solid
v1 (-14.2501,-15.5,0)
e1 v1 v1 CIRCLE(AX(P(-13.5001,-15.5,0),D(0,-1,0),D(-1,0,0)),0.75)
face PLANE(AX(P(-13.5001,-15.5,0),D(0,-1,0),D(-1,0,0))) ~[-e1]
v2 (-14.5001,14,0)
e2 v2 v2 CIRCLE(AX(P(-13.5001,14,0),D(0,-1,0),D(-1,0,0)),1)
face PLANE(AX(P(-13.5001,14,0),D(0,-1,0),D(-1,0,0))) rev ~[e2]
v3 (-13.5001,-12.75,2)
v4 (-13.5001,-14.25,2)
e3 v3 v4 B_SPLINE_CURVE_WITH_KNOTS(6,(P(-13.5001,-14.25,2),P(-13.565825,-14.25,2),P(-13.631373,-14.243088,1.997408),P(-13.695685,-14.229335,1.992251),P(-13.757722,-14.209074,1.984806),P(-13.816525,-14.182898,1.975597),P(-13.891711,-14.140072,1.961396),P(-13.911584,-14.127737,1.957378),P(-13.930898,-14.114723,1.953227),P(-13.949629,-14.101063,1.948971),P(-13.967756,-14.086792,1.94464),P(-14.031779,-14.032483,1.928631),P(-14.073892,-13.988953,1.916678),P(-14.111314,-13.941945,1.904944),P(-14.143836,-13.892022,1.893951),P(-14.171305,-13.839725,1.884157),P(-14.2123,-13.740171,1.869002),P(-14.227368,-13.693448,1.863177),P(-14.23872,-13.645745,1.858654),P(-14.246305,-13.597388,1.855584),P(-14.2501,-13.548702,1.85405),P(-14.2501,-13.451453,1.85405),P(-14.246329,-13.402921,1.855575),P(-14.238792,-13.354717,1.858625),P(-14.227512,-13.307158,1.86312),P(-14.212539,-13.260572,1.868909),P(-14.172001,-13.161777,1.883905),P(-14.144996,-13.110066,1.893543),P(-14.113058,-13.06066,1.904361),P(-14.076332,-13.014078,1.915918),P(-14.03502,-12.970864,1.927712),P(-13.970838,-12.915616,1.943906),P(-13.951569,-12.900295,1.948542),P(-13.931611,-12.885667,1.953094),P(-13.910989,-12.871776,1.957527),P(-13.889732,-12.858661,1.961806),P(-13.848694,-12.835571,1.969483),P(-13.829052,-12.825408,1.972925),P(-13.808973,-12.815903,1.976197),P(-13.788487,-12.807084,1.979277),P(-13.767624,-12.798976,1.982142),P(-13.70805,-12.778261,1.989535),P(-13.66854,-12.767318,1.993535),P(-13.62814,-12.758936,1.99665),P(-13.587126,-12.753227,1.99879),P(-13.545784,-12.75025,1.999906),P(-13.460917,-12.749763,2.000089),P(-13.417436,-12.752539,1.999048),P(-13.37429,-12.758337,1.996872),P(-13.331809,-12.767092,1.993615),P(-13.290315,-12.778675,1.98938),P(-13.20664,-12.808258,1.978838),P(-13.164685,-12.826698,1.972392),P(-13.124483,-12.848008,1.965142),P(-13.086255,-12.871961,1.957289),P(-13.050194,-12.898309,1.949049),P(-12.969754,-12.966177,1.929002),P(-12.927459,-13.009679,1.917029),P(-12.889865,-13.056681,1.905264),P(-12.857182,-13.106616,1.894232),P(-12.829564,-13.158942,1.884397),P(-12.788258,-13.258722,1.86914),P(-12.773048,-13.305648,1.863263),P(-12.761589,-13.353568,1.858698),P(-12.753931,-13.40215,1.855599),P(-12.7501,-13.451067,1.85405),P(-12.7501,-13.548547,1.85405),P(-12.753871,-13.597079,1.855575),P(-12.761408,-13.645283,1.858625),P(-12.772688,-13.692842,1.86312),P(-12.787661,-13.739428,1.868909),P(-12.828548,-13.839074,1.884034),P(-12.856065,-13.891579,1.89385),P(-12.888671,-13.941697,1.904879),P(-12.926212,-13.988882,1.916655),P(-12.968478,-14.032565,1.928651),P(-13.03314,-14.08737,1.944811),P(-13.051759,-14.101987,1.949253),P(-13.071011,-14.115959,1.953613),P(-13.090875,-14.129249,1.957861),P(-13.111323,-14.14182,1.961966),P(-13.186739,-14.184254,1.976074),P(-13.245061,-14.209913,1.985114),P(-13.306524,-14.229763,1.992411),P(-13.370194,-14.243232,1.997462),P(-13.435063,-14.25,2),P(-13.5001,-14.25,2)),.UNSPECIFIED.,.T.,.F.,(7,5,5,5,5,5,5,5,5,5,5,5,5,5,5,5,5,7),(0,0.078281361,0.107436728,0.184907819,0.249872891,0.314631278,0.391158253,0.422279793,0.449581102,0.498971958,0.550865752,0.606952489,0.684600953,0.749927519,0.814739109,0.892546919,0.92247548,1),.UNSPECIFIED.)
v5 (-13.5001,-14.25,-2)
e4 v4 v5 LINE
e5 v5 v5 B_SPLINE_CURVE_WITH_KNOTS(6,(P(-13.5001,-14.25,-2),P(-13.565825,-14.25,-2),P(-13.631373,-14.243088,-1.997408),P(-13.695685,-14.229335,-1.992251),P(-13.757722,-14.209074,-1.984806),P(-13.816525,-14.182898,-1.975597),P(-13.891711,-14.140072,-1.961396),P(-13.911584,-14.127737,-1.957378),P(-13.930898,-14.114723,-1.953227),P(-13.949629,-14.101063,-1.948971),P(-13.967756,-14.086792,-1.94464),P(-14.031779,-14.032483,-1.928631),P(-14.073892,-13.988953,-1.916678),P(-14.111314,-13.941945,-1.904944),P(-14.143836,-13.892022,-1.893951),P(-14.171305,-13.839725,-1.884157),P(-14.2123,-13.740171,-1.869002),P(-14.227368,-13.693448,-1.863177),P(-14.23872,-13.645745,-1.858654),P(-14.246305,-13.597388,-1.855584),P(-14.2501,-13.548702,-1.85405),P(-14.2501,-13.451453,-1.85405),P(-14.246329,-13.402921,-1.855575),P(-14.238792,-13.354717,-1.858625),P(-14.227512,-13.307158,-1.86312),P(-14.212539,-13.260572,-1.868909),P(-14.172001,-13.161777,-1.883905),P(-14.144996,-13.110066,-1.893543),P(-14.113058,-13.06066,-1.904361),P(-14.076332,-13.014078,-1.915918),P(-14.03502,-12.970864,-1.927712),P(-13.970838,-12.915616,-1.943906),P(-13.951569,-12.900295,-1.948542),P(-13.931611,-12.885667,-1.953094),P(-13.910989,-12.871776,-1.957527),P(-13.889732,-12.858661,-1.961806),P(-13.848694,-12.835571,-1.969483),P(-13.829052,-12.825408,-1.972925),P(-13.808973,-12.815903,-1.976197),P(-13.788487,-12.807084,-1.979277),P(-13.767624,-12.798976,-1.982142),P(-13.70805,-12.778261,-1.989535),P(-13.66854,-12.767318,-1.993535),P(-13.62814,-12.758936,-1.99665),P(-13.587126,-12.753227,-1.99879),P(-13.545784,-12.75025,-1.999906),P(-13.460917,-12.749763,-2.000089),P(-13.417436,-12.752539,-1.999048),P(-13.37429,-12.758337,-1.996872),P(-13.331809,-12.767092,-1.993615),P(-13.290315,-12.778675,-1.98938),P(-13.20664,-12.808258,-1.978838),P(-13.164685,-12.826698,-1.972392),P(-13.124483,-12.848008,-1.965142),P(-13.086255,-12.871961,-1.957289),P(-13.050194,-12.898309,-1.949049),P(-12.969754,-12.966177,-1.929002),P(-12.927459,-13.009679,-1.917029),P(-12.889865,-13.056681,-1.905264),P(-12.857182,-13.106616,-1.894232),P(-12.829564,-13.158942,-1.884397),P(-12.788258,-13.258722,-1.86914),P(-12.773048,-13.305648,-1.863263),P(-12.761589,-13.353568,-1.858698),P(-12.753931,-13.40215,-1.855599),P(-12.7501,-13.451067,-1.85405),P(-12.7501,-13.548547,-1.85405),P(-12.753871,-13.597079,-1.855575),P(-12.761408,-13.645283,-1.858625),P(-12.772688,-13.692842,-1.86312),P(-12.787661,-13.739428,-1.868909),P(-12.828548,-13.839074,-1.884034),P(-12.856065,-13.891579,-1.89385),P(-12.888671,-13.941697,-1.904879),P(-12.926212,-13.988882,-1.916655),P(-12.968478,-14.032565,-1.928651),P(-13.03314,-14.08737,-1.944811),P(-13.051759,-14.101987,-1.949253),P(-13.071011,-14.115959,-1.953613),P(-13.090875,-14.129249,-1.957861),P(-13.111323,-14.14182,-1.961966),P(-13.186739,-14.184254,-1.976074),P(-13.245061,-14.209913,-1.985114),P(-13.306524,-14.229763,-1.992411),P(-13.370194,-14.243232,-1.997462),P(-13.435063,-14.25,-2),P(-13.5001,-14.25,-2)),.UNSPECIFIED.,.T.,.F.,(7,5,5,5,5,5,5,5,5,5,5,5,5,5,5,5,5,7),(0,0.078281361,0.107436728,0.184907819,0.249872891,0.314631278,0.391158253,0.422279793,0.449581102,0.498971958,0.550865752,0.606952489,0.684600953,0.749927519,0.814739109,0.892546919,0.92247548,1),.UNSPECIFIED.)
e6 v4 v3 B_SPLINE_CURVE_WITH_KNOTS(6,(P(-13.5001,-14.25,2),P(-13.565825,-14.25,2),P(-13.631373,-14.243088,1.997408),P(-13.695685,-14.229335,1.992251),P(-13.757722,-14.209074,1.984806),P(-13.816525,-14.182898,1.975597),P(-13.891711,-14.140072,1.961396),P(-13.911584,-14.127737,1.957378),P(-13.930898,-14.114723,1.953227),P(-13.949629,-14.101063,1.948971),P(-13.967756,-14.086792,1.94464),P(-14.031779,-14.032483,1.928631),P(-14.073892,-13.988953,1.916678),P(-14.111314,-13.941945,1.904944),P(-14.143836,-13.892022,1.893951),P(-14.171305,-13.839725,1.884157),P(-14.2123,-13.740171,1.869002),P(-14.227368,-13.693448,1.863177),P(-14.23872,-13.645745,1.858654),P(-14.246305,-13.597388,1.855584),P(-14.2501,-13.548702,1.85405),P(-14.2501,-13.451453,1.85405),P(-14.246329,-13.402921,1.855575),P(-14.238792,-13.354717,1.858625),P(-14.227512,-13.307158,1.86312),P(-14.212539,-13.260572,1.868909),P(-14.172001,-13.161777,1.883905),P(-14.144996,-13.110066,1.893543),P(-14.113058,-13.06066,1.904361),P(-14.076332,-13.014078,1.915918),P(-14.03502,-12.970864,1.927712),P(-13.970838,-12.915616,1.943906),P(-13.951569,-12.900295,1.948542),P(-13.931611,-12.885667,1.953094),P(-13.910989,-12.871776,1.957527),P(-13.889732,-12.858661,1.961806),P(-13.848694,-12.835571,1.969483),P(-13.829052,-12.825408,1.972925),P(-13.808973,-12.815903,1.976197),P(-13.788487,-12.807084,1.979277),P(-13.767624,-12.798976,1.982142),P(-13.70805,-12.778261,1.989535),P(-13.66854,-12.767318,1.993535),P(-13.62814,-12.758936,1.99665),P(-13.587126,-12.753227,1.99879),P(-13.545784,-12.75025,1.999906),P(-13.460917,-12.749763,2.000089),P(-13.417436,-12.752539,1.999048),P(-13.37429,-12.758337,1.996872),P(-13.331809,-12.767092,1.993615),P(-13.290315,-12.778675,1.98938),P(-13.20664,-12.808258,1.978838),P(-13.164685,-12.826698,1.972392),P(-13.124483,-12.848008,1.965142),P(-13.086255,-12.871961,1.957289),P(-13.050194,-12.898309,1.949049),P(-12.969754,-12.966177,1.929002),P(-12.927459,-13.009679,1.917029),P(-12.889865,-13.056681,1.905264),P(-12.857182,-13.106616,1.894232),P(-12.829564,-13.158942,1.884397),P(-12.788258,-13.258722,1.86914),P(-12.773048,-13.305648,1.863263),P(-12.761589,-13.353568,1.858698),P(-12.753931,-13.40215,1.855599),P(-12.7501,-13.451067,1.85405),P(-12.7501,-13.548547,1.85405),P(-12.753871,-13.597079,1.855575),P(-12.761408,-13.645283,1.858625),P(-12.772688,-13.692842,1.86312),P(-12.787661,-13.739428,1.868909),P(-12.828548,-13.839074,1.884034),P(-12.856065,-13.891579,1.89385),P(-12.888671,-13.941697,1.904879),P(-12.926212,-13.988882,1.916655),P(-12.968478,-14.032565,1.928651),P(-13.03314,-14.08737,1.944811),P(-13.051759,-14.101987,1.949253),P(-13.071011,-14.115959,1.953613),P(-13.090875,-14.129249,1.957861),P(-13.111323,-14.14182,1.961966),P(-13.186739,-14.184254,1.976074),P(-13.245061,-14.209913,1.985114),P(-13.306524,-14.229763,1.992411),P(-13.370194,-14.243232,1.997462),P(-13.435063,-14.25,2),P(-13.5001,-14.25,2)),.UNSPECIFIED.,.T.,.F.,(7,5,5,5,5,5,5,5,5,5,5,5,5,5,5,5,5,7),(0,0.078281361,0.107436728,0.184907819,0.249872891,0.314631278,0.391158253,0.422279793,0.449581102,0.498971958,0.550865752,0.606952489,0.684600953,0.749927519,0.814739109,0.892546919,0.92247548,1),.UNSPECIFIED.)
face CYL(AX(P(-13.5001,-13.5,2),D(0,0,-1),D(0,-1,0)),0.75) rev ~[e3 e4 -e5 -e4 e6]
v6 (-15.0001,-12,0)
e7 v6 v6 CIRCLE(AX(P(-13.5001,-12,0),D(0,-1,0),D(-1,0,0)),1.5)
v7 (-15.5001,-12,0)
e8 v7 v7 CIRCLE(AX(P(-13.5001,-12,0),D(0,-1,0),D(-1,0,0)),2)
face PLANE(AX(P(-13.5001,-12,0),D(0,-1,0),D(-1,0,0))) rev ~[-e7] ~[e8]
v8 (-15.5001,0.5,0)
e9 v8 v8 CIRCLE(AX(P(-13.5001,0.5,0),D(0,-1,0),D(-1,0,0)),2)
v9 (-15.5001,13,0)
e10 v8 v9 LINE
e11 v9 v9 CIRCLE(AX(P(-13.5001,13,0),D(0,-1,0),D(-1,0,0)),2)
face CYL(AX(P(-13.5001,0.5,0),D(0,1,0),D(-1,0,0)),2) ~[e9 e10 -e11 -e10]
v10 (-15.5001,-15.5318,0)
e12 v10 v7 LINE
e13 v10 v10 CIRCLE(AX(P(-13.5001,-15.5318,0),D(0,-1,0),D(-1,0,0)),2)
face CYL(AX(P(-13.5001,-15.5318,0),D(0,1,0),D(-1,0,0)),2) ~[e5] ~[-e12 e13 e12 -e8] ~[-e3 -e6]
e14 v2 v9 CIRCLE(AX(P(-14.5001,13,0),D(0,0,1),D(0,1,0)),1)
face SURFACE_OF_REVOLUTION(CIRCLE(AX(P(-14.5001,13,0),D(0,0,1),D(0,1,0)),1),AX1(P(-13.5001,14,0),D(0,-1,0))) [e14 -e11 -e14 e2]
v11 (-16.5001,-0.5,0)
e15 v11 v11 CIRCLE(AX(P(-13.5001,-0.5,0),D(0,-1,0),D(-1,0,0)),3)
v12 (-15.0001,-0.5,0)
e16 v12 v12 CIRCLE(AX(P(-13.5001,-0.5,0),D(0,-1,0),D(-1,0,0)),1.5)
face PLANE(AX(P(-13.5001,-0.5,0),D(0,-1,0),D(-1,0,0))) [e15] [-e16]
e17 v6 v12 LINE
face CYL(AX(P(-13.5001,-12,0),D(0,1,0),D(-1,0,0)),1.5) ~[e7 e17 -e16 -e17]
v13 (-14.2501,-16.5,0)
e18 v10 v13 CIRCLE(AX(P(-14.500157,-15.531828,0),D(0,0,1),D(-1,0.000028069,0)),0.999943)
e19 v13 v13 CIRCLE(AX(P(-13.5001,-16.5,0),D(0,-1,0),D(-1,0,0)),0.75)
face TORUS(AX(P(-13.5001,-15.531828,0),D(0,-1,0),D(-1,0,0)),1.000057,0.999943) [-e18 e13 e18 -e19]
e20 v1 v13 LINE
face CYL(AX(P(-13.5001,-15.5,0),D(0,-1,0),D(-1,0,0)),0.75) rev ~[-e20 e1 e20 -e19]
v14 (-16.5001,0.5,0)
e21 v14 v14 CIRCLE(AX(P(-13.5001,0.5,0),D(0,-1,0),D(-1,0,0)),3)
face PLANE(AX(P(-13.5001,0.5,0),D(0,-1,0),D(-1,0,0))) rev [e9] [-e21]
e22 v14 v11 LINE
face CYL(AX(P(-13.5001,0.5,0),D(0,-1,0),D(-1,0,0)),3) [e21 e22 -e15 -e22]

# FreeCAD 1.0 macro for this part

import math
import FreeCAD as App
import Part
import Sketcher
from FreeCAD import Vector
Q = App.Units.Quantity

doc = App.newDocument("Part")
params = doc.addObject("Spreadsheet::Sheet", "Params")
for row, (alias, value) in enumerate([
    ("sketch1_radius", "1 mm"),
    ("sketch1_width", "1 mm"),
    ("sketch1_width2", "1.5 mm"),
    ("sketch1_height", "11.5 mm"),
    ("sketch1_height2", "30.5 mm"),
    ("revolution_angle", "360 deg"),
    ("sketch2_diameter", "1.5 mm"),
    ("hole_diameter", "1.5 mm"),
], start=1):
    params.set(f"A{row}", alias)
    params.set(f"B{row}", "=" + value)
    params.setAlias(f"B{row}", alias)

body = doc.addObject("PartDesign::Body", "Body")

# Sketch on XY plane
sketch1 = body.newObject("Sketcher::SketchObject", "Sketch")
sketch1.AttachmentSupport = (doc.getObject("XY_Plane"), [""])
sketch1.MapMode = "FlatFace"
sketch1.addGeometry([
    Part.LineSegment(Vector(-15.5, 0.5, 0), Vector(-16.5, 0.5, 0)),  # 0
    Part.LineSegment(Vector(-16.5, 0.5, 0), Vector(-16.5, -0.5, 0)),  # 1
    Part.LineSegment(Vector(-16.5, -0.5, 0), Vector(-15, -0.5, 0)),  # 2
    Part.LineSegment(Vector(-15, -0.5, 0), Vector(-15, -12, 0)),  # 3
    Part.LineSegment(Vector(-15, -12, 0), Vector(-15.5, -12, 0)),  # 4
    Part.LineSegment(Vector(-15.5, -12, 0), Vector(-15.5, -15.5, 0)),  # 5
    Part.ArcOfCircle(Part.Circle(Vector(-14.5, -15.5, 0), Vector(0, 0, 1), 1), math.radians(180), math.radians(284)),  # 6
    Part.LineSegment(Vector(-14.3, -16.5, 0), Vector(-14.3, -15.5, 0)),  # 7
    Part.LineSegment(Vector(-14.3, -15.5, 0), Vector(-13.5, -15.5, 0)),  # 8
    Part.LineSegment(Vector(-13.5, -15.5, 0), Vector(-13.5, 14, 0)),  # 9
    Part.LineSegment(Vector(-13.5, 14, 0), Vector(-14.5, 14, 0)),  # 10
    Part.ArcOfCircle(Part.Circle(Vector(-14.5, 13, 0), Vector(0, 0, 1), 1), math.radians(90), math.radians(180)),  # 11
    Part.LineSegment(Vector(-15.5, 13, 0), Vector(-15.5, 0.5, 0)),  # 12
], False)
sketch1.addGeometry(Part.LineSegment(Vector(-13.5, 14, 0), Vector(-13.5, -16.5, 0)), True)  # axis
sketch1.addConstraint([
    Sketcher.Constraint("Coincident", 0, 2, 1, 1),
    Sketcher.Constraint("Coincident", 1, 2, 2, 1),
    Sketcher.Constraint("Coincident", 2, 2, 3, 1),
    Sketcher.Constraint("Coincident", 3, 2, 4, 1),
    Sketcher.Constraint("Coincident", 4, 2, 5, 1),
    Sketcher.Constraint("Tangent", 5, 2, 6, 1),
    Sketcher.Constraint("Coincident", 6, 2, 7, 1),
    Sketcher.Constraint("Coincident", 7, 2, 8, 1),
    Sketcher.Constraint("Coincident", 8, 2, 9, 1),
    Sketcher.Constraint("Coincident", 9, 2, 10, 1),
    Sketcher.Constraint("Tangent", 10, 2, 11, 1),
    Sketcher.Constraint("Tangent", 11, 2, 12, 1),
    Sketcher.Constraint("Coincident", 12, 2, 0, 1),
    Sketcher.Constraint("Horizontal", 0),
    Sketcher.Constraint("Vertical", 1),
    Sketcher.Constraint("Horizontal", 2),
    Sketcher.Constraint("Vertical", 3),
    Sketcher.Constraint("Horizontal", 4),
    Sketcher.Constraint("Vertical", 5),
    Sketcher.Constraint("Vertical", 7),
    Sketcher.Constraint("Horizontal", 8),
    Sketcher.Constraint("Vertical", 9),
    Sketcher.Constraint("Horizontal", 10),
    Sketcher.Constraint("Vertical", 12),
    Sketcher.Constraint("Vertical", 13),
    Sketcher.Constraint("Coincident", 13, 1, 9, 2),
    Sketcher.Constraint("Equal", 6, 11),
    Sketcher.Constraint("Horizontal", 6, 2, 13, 2),
    Sketcher.Constraint("Vertical", 6, 3, 11, 3),
    Sketcher.Constraint("Equal", 0, 10),
    Sketcher.Constraint("Equal", 10, 1),
    Sketcher.Constraint("Equal", 1, 7),
    Sketcher.Constraint("Radius", 6, Q("1 mm")),
    Sketcher.Constraint("DistanceX", 0, 2, 0, 1, Q("1 mm")),
    Sketcher.Constraint("DistanceX", 2, 1, 2, 2, Q("1.5 mm")),
    Sketcher.Constraint("DistanceY", 3, 2, 3, 1, Q("11.5 mm")),
    Sketcher.Constraint("DistanceY", 13, 2, 13, 1, Q("30.5 mm")),
    Sketcher.Constraint("DistanceX", 8, 1, 8, 2, Q("0.75 mm")),
    Sketcher.Constraint("DistanceX", 6, 3, -1, 1, Q("14.5 mm")),
    Sketcher.Constraint("DistanceY", -1, 1, 0, 2, Q("0.5 mm")),
    Sketcher.Constraint("DistanceY", 6, 2, 3, 2, Q("4.5 mm")),
])
sketch1.setExpression("Constraints[32]", "Params.sketch1_radius")
sketch1.setExpression("Constraints[33]", "Params.sketch1_width")
sketch1.setExpression("Constraints[34]", "Params.sketch1_width2")
sketch1.setExpression("Constraints[35]", "Params.sketch1_height")
sketch1.setExpression("Constraints[36]", "Params.sketch1_height2")
revolution = body.newObject("PartDesign::Revolution", "Revolution")
revolution.Profile = sketch1
revolution.ReferenceAxis = (sketch1, ["Axis0"])
revolution.setExpression("Angle", "Params.revolution_angle")

# Sketch on XY plane
sketch2 = body.newObject("Sketcher::SketchObject", "Sketch001")
sketch2.AttachmentSupport = (doc.getObject("XY_Plane"), [""])
sketch2.MapMode = "FlatFace"
sketch2.AttachmentOffset = App.Placement(Vector(0, 0, 2), App.Rotation())
sketch2.addGeometry(Part.Circle(Vector(-13.5, -13.5, 0), Vector(0, 0, 1), 0.8), False)
sketch2.addConstraint([
    Sketcher.Constraint("Diameter", 0, Q("1.5 mm")),
    Sketcher.Constraint("DistanceX", 0, 3, -1, 1, Q("13.5 mm")),
    Sketcher.Constraint("DistanceY", 0, 3, -1, 1, Q("13.5 mm")),
])
sketch2.setExpression("Constraints[0]", "Params.sketch2_diameter")
doc.recompute()
hole = body.newObject("PartDesign::Hole", "Hole")
hole.Profile = sketch2
hole.ThreadType = "None"
hole.setExpression("Diameter", "Params.hole_diameter")
hole.DepthType = "ThroughAll"

doc.recompute()
